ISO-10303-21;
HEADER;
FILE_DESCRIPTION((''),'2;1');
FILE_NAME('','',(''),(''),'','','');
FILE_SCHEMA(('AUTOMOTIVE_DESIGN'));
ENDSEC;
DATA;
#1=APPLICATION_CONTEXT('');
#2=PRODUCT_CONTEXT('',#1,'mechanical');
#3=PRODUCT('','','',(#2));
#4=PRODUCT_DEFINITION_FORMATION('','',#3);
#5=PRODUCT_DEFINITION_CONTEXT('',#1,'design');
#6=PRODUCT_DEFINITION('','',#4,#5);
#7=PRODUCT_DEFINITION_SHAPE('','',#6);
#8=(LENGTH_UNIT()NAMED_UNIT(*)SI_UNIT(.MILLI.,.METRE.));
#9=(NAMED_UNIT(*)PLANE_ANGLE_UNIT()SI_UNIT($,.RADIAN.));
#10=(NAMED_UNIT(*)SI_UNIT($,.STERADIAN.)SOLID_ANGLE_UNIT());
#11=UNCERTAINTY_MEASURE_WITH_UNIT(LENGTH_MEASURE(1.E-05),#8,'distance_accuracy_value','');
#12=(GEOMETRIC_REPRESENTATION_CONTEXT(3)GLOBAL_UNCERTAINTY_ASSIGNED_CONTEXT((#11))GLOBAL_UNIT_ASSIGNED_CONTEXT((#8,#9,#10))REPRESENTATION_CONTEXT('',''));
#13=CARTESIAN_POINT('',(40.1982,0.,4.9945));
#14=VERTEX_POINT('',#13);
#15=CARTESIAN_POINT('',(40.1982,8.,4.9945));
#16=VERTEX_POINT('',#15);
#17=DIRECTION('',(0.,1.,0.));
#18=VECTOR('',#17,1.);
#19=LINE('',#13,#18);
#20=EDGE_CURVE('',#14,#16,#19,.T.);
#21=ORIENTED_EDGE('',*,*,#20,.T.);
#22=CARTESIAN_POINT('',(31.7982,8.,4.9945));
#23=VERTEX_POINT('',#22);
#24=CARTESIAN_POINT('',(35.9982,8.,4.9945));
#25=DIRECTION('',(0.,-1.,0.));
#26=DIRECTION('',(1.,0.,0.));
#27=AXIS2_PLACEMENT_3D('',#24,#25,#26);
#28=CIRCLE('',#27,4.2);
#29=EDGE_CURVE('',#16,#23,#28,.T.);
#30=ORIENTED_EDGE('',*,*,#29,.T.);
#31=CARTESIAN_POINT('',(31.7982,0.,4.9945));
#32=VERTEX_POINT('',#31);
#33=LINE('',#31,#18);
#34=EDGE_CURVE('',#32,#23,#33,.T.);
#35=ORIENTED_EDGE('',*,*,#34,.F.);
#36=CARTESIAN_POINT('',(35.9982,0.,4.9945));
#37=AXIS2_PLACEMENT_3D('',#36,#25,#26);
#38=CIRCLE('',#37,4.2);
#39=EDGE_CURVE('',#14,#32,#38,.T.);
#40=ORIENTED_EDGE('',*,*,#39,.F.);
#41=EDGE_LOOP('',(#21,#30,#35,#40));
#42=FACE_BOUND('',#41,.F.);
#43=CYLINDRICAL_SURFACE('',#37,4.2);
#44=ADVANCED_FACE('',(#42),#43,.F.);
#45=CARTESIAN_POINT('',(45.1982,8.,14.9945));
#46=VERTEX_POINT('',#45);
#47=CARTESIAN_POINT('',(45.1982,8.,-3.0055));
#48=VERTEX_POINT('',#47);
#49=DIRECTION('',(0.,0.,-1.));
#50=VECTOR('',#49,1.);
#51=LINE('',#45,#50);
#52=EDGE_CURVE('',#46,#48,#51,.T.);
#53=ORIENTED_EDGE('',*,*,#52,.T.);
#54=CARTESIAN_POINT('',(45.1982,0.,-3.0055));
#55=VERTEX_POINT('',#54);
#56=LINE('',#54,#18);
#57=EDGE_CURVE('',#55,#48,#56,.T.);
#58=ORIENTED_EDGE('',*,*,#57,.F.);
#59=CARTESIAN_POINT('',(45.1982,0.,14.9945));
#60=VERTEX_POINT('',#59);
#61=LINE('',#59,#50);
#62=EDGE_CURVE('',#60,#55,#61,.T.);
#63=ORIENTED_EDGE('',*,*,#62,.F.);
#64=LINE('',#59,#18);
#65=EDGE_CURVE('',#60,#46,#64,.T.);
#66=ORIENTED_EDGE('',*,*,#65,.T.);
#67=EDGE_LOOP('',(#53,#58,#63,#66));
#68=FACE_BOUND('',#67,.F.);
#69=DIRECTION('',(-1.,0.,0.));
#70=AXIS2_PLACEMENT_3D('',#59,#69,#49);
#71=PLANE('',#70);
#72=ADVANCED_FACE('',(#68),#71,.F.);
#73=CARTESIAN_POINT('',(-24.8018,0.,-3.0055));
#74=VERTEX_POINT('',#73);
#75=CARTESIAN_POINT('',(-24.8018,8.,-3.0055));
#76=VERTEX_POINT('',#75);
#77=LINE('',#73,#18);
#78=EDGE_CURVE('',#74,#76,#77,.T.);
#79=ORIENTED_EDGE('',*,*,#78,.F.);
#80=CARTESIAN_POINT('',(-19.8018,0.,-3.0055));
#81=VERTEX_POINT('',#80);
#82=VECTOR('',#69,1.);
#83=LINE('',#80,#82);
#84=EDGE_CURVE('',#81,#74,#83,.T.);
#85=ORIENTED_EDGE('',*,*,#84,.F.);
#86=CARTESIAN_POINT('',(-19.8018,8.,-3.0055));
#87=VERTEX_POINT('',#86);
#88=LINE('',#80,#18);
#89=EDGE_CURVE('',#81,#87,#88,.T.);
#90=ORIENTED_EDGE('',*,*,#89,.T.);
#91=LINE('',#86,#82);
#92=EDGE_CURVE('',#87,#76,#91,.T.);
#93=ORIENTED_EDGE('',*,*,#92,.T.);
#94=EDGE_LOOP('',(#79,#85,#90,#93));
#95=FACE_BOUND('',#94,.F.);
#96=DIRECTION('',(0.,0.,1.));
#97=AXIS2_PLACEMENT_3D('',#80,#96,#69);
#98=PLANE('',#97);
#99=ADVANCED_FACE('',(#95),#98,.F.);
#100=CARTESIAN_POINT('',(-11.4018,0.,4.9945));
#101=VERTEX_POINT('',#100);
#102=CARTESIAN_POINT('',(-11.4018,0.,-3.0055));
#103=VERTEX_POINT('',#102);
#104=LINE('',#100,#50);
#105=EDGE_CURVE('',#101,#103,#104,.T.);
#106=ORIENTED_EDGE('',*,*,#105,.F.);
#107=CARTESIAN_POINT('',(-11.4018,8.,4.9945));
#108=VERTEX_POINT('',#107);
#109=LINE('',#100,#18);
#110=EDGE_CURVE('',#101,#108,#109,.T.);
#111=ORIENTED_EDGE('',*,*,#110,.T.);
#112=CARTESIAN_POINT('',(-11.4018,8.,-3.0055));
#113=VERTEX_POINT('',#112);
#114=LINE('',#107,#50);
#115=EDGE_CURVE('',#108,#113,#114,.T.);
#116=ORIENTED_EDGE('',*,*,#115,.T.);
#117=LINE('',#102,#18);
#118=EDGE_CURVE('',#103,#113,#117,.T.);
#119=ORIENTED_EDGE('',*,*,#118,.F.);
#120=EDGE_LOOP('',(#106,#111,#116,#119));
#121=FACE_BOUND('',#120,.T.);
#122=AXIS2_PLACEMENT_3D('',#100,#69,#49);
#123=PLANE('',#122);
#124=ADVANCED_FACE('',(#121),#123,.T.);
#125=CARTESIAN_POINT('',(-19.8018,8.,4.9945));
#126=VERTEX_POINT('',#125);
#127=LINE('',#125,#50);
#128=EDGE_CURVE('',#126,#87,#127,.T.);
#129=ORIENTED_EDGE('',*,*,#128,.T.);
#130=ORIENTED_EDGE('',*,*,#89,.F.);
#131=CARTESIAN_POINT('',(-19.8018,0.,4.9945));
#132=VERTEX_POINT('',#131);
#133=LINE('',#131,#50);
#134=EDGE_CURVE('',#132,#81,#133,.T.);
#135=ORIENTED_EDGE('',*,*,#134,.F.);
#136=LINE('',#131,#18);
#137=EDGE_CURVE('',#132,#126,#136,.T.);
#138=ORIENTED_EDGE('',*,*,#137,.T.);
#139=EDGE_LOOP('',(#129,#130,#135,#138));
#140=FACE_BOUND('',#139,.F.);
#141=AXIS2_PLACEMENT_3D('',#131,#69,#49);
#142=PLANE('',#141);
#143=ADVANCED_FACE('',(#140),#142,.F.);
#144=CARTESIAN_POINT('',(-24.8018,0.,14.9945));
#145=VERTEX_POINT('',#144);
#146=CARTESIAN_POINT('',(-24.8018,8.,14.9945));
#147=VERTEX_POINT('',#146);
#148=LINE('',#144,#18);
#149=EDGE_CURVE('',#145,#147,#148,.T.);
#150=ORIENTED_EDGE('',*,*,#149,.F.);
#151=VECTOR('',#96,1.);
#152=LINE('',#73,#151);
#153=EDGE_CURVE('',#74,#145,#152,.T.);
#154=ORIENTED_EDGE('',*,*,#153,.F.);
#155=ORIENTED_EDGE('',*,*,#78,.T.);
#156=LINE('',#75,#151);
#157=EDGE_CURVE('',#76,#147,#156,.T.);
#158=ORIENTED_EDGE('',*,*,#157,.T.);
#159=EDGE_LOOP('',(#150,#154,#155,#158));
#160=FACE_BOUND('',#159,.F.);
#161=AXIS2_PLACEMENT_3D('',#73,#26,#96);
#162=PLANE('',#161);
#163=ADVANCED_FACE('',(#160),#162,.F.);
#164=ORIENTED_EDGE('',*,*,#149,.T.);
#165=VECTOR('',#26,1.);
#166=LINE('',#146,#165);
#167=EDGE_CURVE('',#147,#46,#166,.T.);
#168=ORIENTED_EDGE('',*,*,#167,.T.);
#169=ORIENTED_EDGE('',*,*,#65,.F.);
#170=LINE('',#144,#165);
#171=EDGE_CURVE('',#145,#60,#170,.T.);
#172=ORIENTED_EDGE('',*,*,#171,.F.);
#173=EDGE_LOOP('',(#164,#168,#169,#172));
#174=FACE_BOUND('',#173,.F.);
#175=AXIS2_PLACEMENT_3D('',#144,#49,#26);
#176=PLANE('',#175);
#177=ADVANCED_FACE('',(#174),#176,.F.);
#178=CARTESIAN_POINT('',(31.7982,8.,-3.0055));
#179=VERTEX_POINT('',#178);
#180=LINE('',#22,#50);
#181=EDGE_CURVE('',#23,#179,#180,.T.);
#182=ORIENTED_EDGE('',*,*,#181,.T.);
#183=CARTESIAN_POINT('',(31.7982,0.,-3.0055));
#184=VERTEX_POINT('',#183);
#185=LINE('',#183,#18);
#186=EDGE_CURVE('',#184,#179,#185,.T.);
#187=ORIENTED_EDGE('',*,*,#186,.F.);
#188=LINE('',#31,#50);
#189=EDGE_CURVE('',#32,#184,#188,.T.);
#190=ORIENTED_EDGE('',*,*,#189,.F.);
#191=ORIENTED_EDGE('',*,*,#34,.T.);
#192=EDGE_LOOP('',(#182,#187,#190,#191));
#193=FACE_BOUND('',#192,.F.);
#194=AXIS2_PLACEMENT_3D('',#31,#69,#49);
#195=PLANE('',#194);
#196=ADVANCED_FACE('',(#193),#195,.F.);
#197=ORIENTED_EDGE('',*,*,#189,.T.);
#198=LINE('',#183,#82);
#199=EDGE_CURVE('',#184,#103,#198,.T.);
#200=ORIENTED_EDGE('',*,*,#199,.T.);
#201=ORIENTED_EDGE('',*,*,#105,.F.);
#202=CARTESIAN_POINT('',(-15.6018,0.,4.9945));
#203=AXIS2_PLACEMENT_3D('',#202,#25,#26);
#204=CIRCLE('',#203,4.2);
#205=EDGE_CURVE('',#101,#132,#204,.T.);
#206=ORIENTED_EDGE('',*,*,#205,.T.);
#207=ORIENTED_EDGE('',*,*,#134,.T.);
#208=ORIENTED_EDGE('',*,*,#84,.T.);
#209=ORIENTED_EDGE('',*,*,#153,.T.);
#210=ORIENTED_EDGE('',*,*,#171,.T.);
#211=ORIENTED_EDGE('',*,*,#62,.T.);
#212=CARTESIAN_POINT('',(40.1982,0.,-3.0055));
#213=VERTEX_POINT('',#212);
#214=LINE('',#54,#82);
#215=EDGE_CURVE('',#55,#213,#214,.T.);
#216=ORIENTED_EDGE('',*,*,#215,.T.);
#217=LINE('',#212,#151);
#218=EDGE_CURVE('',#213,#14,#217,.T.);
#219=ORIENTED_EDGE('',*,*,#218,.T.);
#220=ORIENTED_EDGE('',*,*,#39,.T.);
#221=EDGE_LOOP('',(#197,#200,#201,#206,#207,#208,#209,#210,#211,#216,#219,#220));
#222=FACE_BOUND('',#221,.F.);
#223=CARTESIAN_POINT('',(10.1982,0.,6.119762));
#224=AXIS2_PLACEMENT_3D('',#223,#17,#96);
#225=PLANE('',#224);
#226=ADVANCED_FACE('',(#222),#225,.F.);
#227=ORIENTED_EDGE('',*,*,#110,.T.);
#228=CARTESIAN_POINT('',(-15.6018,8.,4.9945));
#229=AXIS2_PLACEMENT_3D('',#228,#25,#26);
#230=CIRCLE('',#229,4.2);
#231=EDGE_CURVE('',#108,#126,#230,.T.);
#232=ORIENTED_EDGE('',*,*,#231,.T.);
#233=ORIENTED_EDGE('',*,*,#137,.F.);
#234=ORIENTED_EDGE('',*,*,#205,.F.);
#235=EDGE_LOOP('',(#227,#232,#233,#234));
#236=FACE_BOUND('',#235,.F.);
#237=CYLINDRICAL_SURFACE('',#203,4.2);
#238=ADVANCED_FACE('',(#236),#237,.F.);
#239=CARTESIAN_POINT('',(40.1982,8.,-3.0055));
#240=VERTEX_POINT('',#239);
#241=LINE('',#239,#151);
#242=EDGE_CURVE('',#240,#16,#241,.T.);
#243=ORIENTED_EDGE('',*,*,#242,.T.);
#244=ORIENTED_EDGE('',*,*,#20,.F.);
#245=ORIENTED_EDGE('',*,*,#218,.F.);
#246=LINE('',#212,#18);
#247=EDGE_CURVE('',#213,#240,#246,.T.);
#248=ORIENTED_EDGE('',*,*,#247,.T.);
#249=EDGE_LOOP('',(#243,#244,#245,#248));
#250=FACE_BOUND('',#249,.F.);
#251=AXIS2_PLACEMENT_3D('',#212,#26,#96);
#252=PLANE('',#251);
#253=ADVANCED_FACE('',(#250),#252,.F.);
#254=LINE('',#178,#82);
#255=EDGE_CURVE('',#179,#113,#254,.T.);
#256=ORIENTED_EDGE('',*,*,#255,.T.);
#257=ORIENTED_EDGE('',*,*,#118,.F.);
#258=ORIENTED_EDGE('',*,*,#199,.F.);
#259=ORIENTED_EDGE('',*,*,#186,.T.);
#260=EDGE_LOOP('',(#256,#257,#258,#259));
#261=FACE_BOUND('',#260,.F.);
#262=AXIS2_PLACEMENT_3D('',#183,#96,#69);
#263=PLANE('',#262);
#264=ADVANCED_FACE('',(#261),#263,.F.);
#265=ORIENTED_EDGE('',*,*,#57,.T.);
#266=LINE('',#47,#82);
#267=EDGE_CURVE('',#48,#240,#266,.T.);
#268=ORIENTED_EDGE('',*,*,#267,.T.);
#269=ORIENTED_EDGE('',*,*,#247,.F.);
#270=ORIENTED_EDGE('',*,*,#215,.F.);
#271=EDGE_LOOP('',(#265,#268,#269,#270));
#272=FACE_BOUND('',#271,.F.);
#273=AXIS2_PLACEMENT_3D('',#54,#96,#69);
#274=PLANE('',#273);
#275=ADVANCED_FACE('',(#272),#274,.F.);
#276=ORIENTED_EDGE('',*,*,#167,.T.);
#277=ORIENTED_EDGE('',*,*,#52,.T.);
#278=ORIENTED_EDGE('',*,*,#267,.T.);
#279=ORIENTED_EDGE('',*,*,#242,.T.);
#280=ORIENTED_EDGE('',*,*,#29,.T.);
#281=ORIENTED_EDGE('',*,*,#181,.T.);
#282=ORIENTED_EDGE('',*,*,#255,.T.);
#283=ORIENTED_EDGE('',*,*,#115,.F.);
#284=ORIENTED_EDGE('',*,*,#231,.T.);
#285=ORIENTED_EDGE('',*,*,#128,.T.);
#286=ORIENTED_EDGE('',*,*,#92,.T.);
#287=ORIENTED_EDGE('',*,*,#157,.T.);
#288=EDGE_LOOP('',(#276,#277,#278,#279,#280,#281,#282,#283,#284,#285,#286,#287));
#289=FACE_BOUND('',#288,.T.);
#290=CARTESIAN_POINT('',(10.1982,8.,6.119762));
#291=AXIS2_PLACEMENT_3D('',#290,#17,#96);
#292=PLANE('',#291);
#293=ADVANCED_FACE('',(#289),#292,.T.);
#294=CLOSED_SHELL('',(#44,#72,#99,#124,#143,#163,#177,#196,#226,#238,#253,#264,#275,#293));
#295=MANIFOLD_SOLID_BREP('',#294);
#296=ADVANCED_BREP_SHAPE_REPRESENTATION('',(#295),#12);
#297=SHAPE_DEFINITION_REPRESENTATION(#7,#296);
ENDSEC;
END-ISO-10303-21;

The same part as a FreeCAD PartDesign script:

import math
import FreeCAD as App
import Part
import Sketcher
from FreeCAD import Vector
Q = App.Units.Quantity

doc = App.newDocument("Part")
body = doc.addObject("PartDesign::Body", "Body")

# Sketch on XZ plane
sketch1 = doc.addObject("Sketcher::SketchObject", "Sketch")
body.addObject(sketch1)
sketch1.AttachmentSupport = (doc.XZ_Plane, [""])
sketch1.MapMode = "FlatFace"
sketch1.addGeometry([
    Part.LineSegment(Vector(45.1982, -3.0055, 0), Vector(45.1982, 14.9945, 0)),  # 0
    Part.LineSegment(Vector(45.1982, 14.9945, 0), Vector(-24.8018, 14.9945, 0)),  # 1
    Part.LineSegment(Vector(-24.8018, 14.9945, 0), Vector(-24.8018, -3.0055, 0)),  # 2
    Part.LineSegment(Vector(-24.8018, -3.0055, 0), Vector(-19.8018, -3.0055, 0)),  # 3
    Part.LineSegment(Vector(-19.8018, -3.0055, 0), Vector(-19.8018, 4.9945, 0)),  # 4
    Part.ArcOfCircle(Part.Circle(Vector(-15.6018, 4.9945, 0), Vector(0, 0, 1), 4.2), math.radians(0), math.radians(180)),  # 5
    Part.LineSegment(Vector(-11.4018, 4.9945, 0), Vector(-11.4018, -3.0055, 0)),  # 6
    Part.LineSegment(Vector(-11.4018, -3.0055, 0), Vector(31.7982, -3.0055, 0)),  # 7
    Part.LineSegment(Vector(31.7982, -3.0055, 0), Vector(31.7982, 4.9945, 0)),  # 8
    Part.ArcOfCircle(Part.Circle(Vector(35.9982, 4.9945, 0), Vector(0, 0, 1), 4.2), math.radians(0), math.radians(180)),  # 9
    Part.LineSegment(Vector(40.1982, 4.9945, 0), Vector(40.1982, -3.0055, 0)),  # 10
    Part.LineSegment(Vector(40.1982, -3.0055, 0), Vector(45.1982, -3.0055, 0)),  # 11
], False)
sketch1.addConstraint([
    Sketcher.Constraint("Coincident", 0, 2, 1, 1),
    Sketcher.Constraint("Coincident", 1, 2, 2, 1),
    Sketcher.Constraint("Coincident", 2, 2, 3, 1),
    Sketcher.Constraint("Coincident", 3, 2, 4, 1),
    Sketcher.Constraint("Tangent", 4, 2, 5, 2),
    Sketcher.Constraint("Tangent", 5, 1, 6, 1),
    Sketcher.Constraint("Coincident", 6, 2, 7, 1),
    Sketcher.Constraint("Coincident", 7, 2, 8, 1),
    Sketcher.Constraint("Tangent", 8, 2, 9, 2),
    Sketcher.Constraint("Tangent", 9, 1, 10, 1),
    Sketcher.Constraint("Coincident", 10, 2, 11, 1),
    Sketcher.Constraint("Coincident", 11, 2, 0, 1),
    Sketcher.Constraint("Vertical", 0),
    Sketcher.Constraint("Horizontal", 1),
    Sketcher.Constraint("Vertical", 2),
    Sketcher.Constraint("Horizontal", 3),
    Sketcher.Constraint("Vertical", 4),
    Sketcher.Constraint("Vertical", 6),
    Sketcher.Constraint("Horizontal", 7),
    Sketcher.Constraint("Vertical", 8),
    Sketcher.Constraint("Vertical", 10),
    Sketcher.Constraint("Horizontal", 11),
    Sketcher.Constraint("Equal", 5, 9),
    Sketcher.Constraint("Horizontal", 5, 3, 9, 3),
    Sketcher.Constraint("Horizontal", 3, 2, 6, 2),
    Sketcher.Constraint("Horizontal", 7, 2, 10, 2),
    Sketcher.Constraint("Equal", 3, 11),
    Sketcher.Constraint("Radius", 5, Q("4.2 mm")),
    Sketcher.Constraint("DistanceX", 1, 2, 1, 1, Q("70 mm")),
    Sketcher.Constraint("DistanceX", 3, 1, 3, 2, Q("5 mm")),
    Sketcher.Constraint("DistanceY", 0, 1, 0, 2, Q("18 mm")),
    Sketcher.Constraint("DistanceY", 4, 1, 4, 2, Q("8 mm")),
    Sketcher.Constraint("DistanceX", -1, 1, 0, 2, Q("45.1982 mm")),
    Sketcher.Constraint("DistanceY", -1, 1, 5, 3, Q("4.9945 mm")),
])
pad1 = doc.addObject("PartDesign::Pad", "Pad")
body.addObject(pad1)
pad1.Profile = sketch1
pad1.Length = 8
pad1.Reversed = True

doc.recompute()
